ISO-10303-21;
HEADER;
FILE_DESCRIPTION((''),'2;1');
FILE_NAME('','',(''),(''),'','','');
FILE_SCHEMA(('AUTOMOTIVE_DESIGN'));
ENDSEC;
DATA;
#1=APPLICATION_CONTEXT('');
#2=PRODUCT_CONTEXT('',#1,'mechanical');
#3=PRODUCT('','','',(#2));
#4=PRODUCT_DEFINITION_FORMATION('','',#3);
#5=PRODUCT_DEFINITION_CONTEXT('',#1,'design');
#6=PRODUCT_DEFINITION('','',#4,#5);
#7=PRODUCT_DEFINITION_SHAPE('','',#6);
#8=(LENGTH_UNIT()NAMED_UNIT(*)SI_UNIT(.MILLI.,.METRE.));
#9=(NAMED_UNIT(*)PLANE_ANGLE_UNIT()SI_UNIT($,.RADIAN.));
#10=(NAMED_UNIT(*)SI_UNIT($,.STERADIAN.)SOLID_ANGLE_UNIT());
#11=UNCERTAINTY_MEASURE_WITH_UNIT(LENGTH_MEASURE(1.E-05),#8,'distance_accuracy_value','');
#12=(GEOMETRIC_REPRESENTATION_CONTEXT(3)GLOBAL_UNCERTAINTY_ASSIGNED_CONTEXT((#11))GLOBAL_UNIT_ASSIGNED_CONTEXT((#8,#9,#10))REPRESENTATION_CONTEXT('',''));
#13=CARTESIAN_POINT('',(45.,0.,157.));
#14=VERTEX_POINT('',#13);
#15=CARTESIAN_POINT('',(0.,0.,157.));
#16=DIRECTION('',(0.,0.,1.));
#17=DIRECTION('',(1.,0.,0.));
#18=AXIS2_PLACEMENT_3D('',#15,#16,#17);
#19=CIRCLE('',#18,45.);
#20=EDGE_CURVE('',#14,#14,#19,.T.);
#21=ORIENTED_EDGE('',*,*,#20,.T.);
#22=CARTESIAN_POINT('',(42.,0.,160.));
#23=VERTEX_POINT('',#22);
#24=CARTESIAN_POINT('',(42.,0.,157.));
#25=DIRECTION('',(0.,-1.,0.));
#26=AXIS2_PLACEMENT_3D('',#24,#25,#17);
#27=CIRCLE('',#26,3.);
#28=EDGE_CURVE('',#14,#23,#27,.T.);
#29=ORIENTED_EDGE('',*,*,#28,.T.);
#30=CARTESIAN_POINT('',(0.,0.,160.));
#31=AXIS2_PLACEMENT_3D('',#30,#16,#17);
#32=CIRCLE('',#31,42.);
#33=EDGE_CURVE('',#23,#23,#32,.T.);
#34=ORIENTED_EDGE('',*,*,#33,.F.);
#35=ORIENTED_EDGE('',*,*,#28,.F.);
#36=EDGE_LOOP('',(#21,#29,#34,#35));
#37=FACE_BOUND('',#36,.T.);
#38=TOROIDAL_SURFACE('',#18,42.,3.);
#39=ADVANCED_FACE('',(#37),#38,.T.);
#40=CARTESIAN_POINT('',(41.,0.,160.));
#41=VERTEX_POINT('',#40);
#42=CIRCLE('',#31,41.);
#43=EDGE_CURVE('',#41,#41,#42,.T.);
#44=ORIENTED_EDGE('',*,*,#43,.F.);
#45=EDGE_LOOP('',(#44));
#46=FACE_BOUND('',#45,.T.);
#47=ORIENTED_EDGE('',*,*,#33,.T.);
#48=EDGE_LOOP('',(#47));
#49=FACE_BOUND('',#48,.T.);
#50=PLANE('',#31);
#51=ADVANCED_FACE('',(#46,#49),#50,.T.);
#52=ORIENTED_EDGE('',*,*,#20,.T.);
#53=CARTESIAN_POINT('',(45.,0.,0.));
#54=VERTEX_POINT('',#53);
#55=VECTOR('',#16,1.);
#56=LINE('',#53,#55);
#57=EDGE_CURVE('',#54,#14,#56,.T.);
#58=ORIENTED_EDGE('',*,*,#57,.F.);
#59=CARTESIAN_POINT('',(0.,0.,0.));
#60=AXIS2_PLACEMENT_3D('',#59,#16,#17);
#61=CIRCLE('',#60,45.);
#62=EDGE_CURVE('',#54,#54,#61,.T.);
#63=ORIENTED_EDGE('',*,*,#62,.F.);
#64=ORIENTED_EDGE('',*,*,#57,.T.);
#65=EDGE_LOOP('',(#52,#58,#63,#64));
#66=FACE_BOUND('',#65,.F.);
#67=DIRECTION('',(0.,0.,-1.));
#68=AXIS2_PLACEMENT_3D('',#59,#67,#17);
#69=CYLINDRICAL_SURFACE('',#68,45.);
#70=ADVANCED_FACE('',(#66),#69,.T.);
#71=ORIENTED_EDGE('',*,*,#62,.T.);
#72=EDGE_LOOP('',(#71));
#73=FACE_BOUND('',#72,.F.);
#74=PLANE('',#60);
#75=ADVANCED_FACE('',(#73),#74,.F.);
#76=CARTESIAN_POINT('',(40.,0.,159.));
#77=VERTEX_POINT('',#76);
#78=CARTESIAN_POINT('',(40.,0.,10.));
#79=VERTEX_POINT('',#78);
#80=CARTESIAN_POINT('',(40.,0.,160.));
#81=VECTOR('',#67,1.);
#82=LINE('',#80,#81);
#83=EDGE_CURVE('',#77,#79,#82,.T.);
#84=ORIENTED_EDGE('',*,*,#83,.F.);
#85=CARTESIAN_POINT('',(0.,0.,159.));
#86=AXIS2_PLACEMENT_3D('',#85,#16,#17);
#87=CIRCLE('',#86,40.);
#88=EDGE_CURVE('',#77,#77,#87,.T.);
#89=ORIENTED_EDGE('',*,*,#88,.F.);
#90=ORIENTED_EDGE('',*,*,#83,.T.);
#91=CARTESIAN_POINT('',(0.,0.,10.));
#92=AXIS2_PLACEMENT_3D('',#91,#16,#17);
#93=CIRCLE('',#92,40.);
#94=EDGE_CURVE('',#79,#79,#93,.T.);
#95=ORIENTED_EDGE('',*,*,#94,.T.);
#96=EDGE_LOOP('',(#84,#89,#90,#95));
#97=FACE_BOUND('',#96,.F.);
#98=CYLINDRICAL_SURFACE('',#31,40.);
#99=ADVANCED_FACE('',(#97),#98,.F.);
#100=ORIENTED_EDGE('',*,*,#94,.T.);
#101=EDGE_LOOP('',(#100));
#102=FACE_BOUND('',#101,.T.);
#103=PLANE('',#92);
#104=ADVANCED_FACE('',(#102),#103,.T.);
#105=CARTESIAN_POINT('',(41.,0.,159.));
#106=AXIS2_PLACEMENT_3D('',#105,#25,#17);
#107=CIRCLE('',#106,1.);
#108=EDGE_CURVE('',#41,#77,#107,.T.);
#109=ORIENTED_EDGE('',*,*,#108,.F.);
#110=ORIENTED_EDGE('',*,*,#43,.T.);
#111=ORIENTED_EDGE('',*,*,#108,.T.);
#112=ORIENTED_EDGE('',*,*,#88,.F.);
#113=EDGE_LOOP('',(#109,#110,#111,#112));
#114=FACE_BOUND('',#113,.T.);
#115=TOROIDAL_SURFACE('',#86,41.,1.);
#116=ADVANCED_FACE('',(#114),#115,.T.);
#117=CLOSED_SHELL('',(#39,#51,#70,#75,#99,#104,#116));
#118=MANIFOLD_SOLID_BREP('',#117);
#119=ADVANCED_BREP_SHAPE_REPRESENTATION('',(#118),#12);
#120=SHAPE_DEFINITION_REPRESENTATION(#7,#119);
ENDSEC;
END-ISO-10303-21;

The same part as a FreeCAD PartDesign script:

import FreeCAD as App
import Part
import Sketcher
from FreeCAD import Vector


def edges_at(feature, points):
    """Names of the edges that pass closest to the given points."""
    edges = feature.Shape.Edges
    near = lambda p: min(range(len(edges)), key=lambda i: edges[i].distToShape(Part.Vertex(*p))[0])
    return sorted({f"Edge{near(p) + 1}" for p in points})

doc = App.newDocument("Part")
body = doc.addObject("PartDesign::Body", "Body")

sketch1 = body.newObject("Sketcher::SketchObject", "Sketch")
sketch1.AttachmentSupport = (doc.getObject("XY_Plane"), [""])
sketch1.MapMode = "FlatFace"
sketch1.addGeometry(Part.Circle(Vector(0, 0, 0), Vector(0, 0, 1), 45), False)
sketch1.addConstraint([
    Sketcher.Constraint("Coincident", 0, 3, -1, 1),
    Sketcher.Constraint("Diameter", 0, 90.0),
])
pad1 = body.newObject("PartDesign::Pad", "Pad")
pad1.Profile = sketch1
pad1.Length = 160
doc.recompute()

fillet = body.newObject("PartDesign::Fillet", "Fillet")
fillet.Base = (pad1, edges_at(pad1, [(-45, 0, 160)]))
fillet.Radius = 3

sketch2 = body.newObject("Sketcher::SketchObject", "Sketch001")
sketch2.AttachmentSupport = (doc.getObject("XY_Plane"), [""])
sketch2.MapMode = "FlatFace"
sketch2.AttachmentOffset = App.Placement(Vector(0, 0, 160), App.Rotation())
sketch2.addGeometry(Part.Circle(Vector(0, 0, 0), Vector(0, 0, 1), 40), False)
sketch2.addConstraint([
    Sketcher.Constraint("Coincident", 0, 3, -1, 1),
    Sketcher.Constraint("Diameter", 0, 80.0),
])
pocket1 = body.newObject("PartDesign::Pocket", "Pocket")
pocket1.Profile = sketch2
pocket1.Length = 150
doc.recompute()

fillet2 = body.newObject("PartDesign::Fillet", "Fillet001")
fillet2.Base = (pocket1, edges_at(pocket1, [(-40, 0, 160)]))
fillet2.Radius = 1

doc.recompute()
